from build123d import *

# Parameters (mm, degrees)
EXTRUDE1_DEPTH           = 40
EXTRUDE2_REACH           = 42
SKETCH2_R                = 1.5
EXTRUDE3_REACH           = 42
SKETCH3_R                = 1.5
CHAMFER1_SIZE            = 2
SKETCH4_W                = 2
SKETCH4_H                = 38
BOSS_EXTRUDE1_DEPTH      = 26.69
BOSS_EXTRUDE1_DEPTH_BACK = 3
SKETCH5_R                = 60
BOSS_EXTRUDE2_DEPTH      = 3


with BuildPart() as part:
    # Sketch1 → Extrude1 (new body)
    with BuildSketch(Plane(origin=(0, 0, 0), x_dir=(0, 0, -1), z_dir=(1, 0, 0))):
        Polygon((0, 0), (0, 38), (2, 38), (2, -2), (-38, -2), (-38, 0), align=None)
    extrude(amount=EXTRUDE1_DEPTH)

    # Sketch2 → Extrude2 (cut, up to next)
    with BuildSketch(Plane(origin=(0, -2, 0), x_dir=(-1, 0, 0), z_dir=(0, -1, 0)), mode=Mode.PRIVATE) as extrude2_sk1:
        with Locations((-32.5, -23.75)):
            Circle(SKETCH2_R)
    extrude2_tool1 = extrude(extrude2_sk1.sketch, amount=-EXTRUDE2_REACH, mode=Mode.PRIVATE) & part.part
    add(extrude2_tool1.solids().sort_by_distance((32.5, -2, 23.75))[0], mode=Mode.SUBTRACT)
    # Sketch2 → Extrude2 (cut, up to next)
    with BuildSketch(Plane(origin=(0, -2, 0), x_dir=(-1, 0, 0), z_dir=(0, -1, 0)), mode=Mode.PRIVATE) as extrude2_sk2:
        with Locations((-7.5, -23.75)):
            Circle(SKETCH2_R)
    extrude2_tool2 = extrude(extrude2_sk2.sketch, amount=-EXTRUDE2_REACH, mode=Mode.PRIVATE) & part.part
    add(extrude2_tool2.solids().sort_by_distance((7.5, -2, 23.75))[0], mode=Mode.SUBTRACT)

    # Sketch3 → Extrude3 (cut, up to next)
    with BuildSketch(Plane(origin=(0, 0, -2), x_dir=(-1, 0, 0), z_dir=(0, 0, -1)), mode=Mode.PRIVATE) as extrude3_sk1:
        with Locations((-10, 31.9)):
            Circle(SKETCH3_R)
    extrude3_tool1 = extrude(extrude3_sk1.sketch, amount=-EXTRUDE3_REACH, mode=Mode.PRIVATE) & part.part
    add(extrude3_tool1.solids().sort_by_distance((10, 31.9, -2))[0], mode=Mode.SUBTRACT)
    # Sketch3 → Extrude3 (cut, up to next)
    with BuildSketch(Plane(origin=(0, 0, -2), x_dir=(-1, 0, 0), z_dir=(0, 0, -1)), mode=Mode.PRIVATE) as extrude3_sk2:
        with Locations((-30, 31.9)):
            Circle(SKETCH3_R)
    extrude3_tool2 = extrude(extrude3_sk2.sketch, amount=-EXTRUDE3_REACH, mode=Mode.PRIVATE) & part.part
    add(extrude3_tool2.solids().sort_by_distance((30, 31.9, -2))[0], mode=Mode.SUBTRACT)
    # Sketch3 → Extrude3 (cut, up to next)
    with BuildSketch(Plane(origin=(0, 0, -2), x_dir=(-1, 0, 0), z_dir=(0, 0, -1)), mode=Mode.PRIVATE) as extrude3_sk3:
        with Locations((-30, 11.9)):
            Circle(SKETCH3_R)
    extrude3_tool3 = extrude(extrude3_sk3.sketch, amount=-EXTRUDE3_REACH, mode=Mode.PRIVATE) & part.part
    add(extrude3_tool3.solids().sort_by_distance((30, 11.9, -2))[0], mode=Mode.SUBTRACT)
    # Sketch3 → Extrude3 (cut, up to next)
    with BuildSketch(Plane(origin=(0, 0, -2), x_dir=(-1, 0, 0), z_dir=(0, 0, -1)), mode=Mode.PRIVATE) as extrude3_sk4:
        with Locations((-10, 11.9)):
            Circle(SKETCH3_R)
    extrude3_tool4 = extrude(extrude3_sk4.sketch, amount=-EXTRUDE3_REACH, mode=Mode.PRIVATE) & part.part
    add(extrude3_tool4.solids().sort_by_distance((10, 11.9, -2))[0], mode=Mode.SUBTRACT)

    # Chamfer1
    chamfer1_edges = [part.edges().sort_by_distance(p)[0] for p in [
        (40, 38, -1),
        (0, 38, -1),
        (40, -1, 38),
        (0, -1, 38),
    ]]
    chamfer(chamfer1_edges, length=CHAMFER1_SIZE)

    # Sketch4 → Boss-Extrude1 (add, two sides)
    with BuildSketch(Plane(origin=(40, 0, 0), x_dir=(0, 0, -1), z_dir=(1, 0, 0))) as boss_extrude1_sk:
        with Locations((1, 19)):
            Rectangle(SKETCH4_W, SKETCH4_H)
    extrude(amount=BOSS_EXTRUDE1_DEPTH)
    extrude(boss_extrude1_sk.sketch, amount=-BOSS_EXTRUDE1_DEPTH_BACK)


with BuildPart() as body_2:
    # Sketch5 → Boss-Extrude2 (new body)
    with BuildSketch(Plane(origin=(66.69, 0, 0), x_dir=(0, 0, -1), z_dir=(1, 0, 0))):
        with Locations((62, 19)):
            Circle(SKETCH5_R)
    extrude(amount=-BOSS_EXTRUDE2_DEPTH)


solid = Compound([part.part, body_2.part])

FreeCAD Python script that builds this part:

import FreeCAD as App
import Part
import Sketcher
Q = App.Units.Quantity


def edges_at(feature, points):
    """Names of the edges that pass closest to the given points."""
    edges = feature.Shape.Edges
    near = lambda p: min(range(len(edges)), key=lambda i: edges[i].distToShape(Part.Vertex(*p))[0])
    return sorted({f"Edge{near(p) + 1}" for p in points})

doc = App.newDocument("Part")
body = doc.addObject("PartDesign::Body", "Body")

# Sketch on YZ plane
sketch1 = body.newObject("Sketcher::SketchObject", "Sketch")
sketch1.AttachmentSupport = (doc.getObject("YZ_Plane"), [""])
sketch1.MapMode = "FlatFace"
sketch1.addGeometry(Part.LineSegment(App.Vector(38, 0, 0), App.Vector(0, 0, 0)), False)
sketch1.addGeometry(Part.LineSegment(App.Vector(0, 0, 0), App.Vector(0, 38, 0)), False)
sketch1.addGeometry(Part.LineSegment(App.Vector(0, 38, 0), App.Vector(-2, 38, 0)), False)
sketch1.addGeometry(Part.LineSegment(App.Vector(-2, 38, 0), App.Vector(-2, -2, 0)), False)
sketch1.addGeometry(Part.LineSegment(App.Vector(-2, -2, 0), App.Vector(38, -2, 0)), False)
sketch1.addGeometry(Part.LineSegment(App.Vector(38, -2, 0), App.Vector(38, 0, 0)), False)
sketch1.addConstraint(Sketcher.Constraint("Coincident", 0, 2, 1, 1))
sketch1.addConstraint(Sketcher.Constraint("Coincident", 1, 2, 2, 1))
sketch1.addConstraint(Sketcher.Constraint("Coincident", 2, 2, 3, 1))
sketch1.addConstraint(Sketcher.Constraint("Coincident", 3, 2, 4, 1))
sketch1.addConstraint(Sketcher.Constraint("Coincident", 4, 2, 5, 1))
sketch1.addConstraint(Sketcher.Constraint("Coincident", 5, 2, 0, 1))
sketch1.addConstraint(Sketcher.Constraint("Horizontal", 0))
sketch1.addConstraint(Sketcher.Constraint("Vertical", 1))
sketch1.addConstraint(Sketcher.Constraint("Horizontal", 2))
sketch1.addConstraint(Sketcher.Constraint("Vertical", 3))
sketch1.addConstraint(Sketcher.Constraint("Horizontal", 4))
sketch1.addConstraint(Sketcher.Constraint("Vertical", 5))
sketch1.addConstraint(Sketcher.Constraint("Coincident", 0, 2, -1, 1))
sketch1.addConstraint(Sketcher.Constraint("Equal", 0, 1))
sketch1.addConstraint(Sketcher.Constraint("Equal", 4, 3))
sketch1.addConstraint(Sketcher.Constraint("DistanceX", 0, 2, 0, 1, Q("38 mm")))
sketch1.addConstraint(Sketcher.Constraint("DistanceX", 2, 2, 2, 1, Q("2 mm")))
pad1 = body.newObject("PartDesign::Pad", "Pad")
pad1.Profile = sketch1
pad1.Length = 40

# Sketch on XZ plane
sketch2 = body.newObject("Sketcher::SketchObject", "Sketch001")
sketch2.AttachmentSupport = (doc.getObject("XZ_Plane"), [""])
sketch2.MapMode = "FlatFace"
sketch2.AttachmentOffset = App.Placement(App.Vector(0, 0, 2), App.Rotation())
sketch2.addGeometry(Part.Circle(App.Vector(32.5, 23.8, 0), App.Vector(0, 0, 1), 1.5), False)
sketch2.addConstraint(Sketcher.Constraint("Diameter", 0, Q("3 mm")))
sketch2.addConstraint(Sketcher.Constraint("DistanceX", -1, 1, 0, 3, Q("32.5 mm")))
sketch2.addConstraint(Sketcher.Constraint("DistanceY", -1, 1, 0, 3, Q("23.75 mm")))
pocket1 = body.newObject("PartDesign::Pocket", "Pocket")
pocket1.Profile = sketch2
pocket1.Type = "UpToFirst"

# Sketch on XZ plane
sketch3 = body.newObject("Sketcher::SketchObject", "Sketch002")
sketch3.AttachmentSupport = (doc.getObject("XZ_Plane"), [""])
sketch3.MapMode = "FlatFace"
sketch3.AttachmentOffset = App.Placement(App.Vector(0, 0, 2), App.Rotation())
sketch3.addGeometry(Part.Circle(App.Vector(7.5, 23.8, 0), App.Vector(0, 0, 1), 1.5), False)
sketch3.addConstraint(Sketcher.Constraint("Diameter", 0, Q("3 mm")))
sketch3.addConstraint(Sketcher.Constraint("DistanceX", -1, 1, 0, 3, Q("7.5 mm")))
sketch3.addConstraint(Sketcher.Constraint("DistanceY", -1, 1, 0, 3, Q("23.75 mm")))
pocket2 = body.newObject("PartDesign::Pocket", "Pocket001")
pocket2.Profile = sketch3
pocket2.Type = "UpToFirst"

# Sketch on XY plane
sketch4 = body.newObject("Sketcher::SketchObject", "Sketch003")
sketch4.AttachmentSupport = (doc.getObject("XY_Plane"), [""])
sketch4.MapMode = "FlatFace"
sketch4.AttachmentOffset = App.Placement(App.Vector(0, 0, -2), App.Rotation())
sketch4.addGeometry(Part.Circle(App.Vector(10, 31.9, 0), App.Vector(0, 0, 1), 1.5), False)
sketch4.addConstraint(Sketcher.Constraint("Diameter", 0, Q("3 mm")))
sketch4.addConstraint(Sketcher.Constraint("DistanceX", -1, 1, 0, 3, Q("10 mm")))
sketch4.addConstraint(Sketcher.Constraint("DistanceY", -1, 1, 0, 3, Q("31.9 mm")))
pocket3 = body.newObject("PartDesign::Pocket", "Pocket002")
pocket3.Profile = sketch4
pocket3.Type = "UpToFirst"
pocket3.Reversed = True

# Sketch on XY plane
sketch5 = body.newObject("Sketcher::SketchObject", "Sketch004")
sketch5.AttachmentSupport = (doc.getObject("XY_Plane"), [""])
sketch5.MapMode = "FlatFace"
sketch5.AttachmentOffset = App.Placement(App.Vector(0, 0, -2), App.Rotation())
sketch5.addGeometry(Part.Circle(App.Vector(30, 31.9, 0), App.Vector(0, 0, 1), 1.5), False)
sketch5.addConstraint(Sketcher.Constraint("Diameter", 0, Q("3 mm")))
sketch5.addConstraint(Sketcher.Constraint("DistanceX", -1, 1, 0, 3, Q("30 mm")))
sketch5.addConstraint(Sketcher.Constraint("DistanceY", -1, 1, 0, 3, Q("31.9 mm")))
pocket4 = body.newObject("PartDesign::Pocket", "Pocket003")
pocket4.Profile = sketch5
pocket4.Type = "UpToFirst"
pocket4.Reversed = True

# Sketch on XY plane
sketch6 = body.newObject("Sketcher::SketchObject", "Sketch005")
sketch6.AttachmentSupport = (doc.getObject("XY_Plane"), [""])
sketch6.MapMode = "FlatFace"
sketch6.AttachmentOffset = App.Placement(App.Vector(0, 0, -2), App.Rotation())
sketch6.addGeometry(Part.Circle(App.Vector(30, 11.9, 0), App.Vector(0, 0, 1), 1.5), False)
sketch6.addConstraint(Sketcher.Constraint("Diameter", 0, Q("3 mm")))
sketch6.addConstraint(Sketcher.Constraint("DistanceX", -1, 1, 0, 3, Q("30 mm")))
sketch6.addConstraint(Sketcher.Constraint("DistanceY", -1, 1, 0, 3, Q("11.9 mm")))
pocket5 = body.newObject("PartDesign::Pocket", "Pocket004")
pocket5.Profile = sketch6
pocket5.Type = "UpToFirst"
pocket5.Reversed = True

# Sketch on XY plane
sketch7 = body.newObject("Sketcher::SketchObject", "Sketch006")
sketch7.AttachmentSupport = (doc.getObject("XY_Plane"), [""])
sketch7.MapMode = "FlatFace"
sketch7.AttachmentOffset = App.Placement(App.Vector(0, 0, -2), App.Rotation())
sketch7.addGeometry(Part.Circle(App.Vector(10, 11.9, 0), App.Vector(0, 0, 1), 1.5), False)
sketch7.addConstraint(Sketcher.Constraint("Diameter", 0, Q("3 mm")))
sketch7.addConstraint(Sketcher.Constraint("DistanceX", -1, 1, 0, 3, Q("10 mm")))
sketch7.addConstraint(Sketcher.Constraint("DistanceY", -1, 1, 0, 3, Q("11.9 mm")))
pocket6 = body.newObject("PartDesign::Pocket", "Pocket005")
pocket6.Profile = sketch7
pocket6.Type = "UpToFirst"
pocket6.Reversed = True
doc.recompute()

chamfer = body.newObject("PartDesign::Chamfer", "Chamfer")
chamfer.Base = (pocket6, edges_at(pocket6, [
    (40, 38, -1),
    (0, 38, -1),
    (40, -1, 38),
    (0, -1, 38),
]))
chamfer.Size = 2

# Sketch on YZ plane
sketch8 = body.newObject("Sketcher::SketchObject", "Sketch007")
sketch8.AttachmentSupport = (doc.getObject("YZ_Plane"), [""])
sketch8.MapMode = "FlatFace"
sketch8.AttachmentOffset = App.Placement(App.Vector(0, 0, 40), App.Rotation())
sketch8.addGeometry(Part.LineSegment(App.Vector(38, 0, 0), App.Vector(0, 0, 0)), False)
sketch8.addGeometry(Part.LineSegment(App.Vector(0, 0, 0), App.Vector(0, -2, 0)), False)
sketch8.addGeometry(Part.LineSegment(App.Vector(0, -2, 0), App.Vector(38, -2, 0)), False)
sketch8.addGeometry(Part.LineSegment(App.Vector(38, -2, 0), App.Vector(38, 0, 0)), False)
sketch8.addConstraint(Sketcher.Constraint("Coincident", 0, 2, 1, 1))
sketch8.addConstraint(Sketcher.Constraint("Coincident", 1, 2, 2, 1))
sketch8.addConstraint(Sketcher.Constraint("Coincident", 2, 2, 3, 1))
sketch8.addConstraint(Sketcher.Constraint("Coincident", 3, 2, 0, 1))
sketch8.addConstraint(Sketcher.Constraint("Horizontal", 0))
sketch8.addConstraint(Sketcher.Constraint("Vertical", 1))
sketch8.addConstraint(Sketcher.Constraint("Horizontal", 2))
sketch8.addConstraint(Sketcher.Constraint("Vertical", 3))
sketch8.addConstraint(Sketcher.Constraint("Coincident", 0, 2, -1, 1))
sketch8.addConstraint(Sketcher.Constraint("DistanceX", 0, 2, 0, 1, Q("38 mm")))
sketch8.addConstraint(Sketcher.Constraint("DistanceY", 1, 2, 1, 1, Q("2 mm")))
pad2 = body.newObject("PartDesign::Pad", "Pad001")
pad2.Profile = sketch8
pad2.Type = "TwoLengths"
pad2.Length = 26.69
pad2.Length2 = 3
body2 = doc.addObject("PartDesign::Body", "Body001")

# Sketch on YZ plane
sketch9 = body2.newObject("Sketcher::SketchObject", "Sketch008")
sketch9.AttachmentSupport = (doc.getObject("YZ_Plane001"), [""])
sketch9.MapMode = "FlatFace"
sketch9.AttachmentOffset = App.Placement(App.Vector(0, 0, 66.69), App.Rotation())
sketch9.addGeometry(Part.Circle(App.Vector(19, -62, 0), App.Vector(0, 0, 1), 60), False)
sketch9.addConstraint(Sketcher.Constraint("Diameter", 0, Q("120 mm")))
sketch9.addConstraint(Sketcher.Constraint("DistanceX", -1, 1, 0, 3, Q("19 mm")))
sketch9.addConstraint(Sketcher.Constraint("DistanceY", 0, 3, -1, 1, Q("62 mm")))
pad3 = body2.newObject("PartDesign::Pad", "Pad002")
pad3.Profile = sketch9
pad3.Length = 3
pad3.Reversed = True

doc.recompute()
